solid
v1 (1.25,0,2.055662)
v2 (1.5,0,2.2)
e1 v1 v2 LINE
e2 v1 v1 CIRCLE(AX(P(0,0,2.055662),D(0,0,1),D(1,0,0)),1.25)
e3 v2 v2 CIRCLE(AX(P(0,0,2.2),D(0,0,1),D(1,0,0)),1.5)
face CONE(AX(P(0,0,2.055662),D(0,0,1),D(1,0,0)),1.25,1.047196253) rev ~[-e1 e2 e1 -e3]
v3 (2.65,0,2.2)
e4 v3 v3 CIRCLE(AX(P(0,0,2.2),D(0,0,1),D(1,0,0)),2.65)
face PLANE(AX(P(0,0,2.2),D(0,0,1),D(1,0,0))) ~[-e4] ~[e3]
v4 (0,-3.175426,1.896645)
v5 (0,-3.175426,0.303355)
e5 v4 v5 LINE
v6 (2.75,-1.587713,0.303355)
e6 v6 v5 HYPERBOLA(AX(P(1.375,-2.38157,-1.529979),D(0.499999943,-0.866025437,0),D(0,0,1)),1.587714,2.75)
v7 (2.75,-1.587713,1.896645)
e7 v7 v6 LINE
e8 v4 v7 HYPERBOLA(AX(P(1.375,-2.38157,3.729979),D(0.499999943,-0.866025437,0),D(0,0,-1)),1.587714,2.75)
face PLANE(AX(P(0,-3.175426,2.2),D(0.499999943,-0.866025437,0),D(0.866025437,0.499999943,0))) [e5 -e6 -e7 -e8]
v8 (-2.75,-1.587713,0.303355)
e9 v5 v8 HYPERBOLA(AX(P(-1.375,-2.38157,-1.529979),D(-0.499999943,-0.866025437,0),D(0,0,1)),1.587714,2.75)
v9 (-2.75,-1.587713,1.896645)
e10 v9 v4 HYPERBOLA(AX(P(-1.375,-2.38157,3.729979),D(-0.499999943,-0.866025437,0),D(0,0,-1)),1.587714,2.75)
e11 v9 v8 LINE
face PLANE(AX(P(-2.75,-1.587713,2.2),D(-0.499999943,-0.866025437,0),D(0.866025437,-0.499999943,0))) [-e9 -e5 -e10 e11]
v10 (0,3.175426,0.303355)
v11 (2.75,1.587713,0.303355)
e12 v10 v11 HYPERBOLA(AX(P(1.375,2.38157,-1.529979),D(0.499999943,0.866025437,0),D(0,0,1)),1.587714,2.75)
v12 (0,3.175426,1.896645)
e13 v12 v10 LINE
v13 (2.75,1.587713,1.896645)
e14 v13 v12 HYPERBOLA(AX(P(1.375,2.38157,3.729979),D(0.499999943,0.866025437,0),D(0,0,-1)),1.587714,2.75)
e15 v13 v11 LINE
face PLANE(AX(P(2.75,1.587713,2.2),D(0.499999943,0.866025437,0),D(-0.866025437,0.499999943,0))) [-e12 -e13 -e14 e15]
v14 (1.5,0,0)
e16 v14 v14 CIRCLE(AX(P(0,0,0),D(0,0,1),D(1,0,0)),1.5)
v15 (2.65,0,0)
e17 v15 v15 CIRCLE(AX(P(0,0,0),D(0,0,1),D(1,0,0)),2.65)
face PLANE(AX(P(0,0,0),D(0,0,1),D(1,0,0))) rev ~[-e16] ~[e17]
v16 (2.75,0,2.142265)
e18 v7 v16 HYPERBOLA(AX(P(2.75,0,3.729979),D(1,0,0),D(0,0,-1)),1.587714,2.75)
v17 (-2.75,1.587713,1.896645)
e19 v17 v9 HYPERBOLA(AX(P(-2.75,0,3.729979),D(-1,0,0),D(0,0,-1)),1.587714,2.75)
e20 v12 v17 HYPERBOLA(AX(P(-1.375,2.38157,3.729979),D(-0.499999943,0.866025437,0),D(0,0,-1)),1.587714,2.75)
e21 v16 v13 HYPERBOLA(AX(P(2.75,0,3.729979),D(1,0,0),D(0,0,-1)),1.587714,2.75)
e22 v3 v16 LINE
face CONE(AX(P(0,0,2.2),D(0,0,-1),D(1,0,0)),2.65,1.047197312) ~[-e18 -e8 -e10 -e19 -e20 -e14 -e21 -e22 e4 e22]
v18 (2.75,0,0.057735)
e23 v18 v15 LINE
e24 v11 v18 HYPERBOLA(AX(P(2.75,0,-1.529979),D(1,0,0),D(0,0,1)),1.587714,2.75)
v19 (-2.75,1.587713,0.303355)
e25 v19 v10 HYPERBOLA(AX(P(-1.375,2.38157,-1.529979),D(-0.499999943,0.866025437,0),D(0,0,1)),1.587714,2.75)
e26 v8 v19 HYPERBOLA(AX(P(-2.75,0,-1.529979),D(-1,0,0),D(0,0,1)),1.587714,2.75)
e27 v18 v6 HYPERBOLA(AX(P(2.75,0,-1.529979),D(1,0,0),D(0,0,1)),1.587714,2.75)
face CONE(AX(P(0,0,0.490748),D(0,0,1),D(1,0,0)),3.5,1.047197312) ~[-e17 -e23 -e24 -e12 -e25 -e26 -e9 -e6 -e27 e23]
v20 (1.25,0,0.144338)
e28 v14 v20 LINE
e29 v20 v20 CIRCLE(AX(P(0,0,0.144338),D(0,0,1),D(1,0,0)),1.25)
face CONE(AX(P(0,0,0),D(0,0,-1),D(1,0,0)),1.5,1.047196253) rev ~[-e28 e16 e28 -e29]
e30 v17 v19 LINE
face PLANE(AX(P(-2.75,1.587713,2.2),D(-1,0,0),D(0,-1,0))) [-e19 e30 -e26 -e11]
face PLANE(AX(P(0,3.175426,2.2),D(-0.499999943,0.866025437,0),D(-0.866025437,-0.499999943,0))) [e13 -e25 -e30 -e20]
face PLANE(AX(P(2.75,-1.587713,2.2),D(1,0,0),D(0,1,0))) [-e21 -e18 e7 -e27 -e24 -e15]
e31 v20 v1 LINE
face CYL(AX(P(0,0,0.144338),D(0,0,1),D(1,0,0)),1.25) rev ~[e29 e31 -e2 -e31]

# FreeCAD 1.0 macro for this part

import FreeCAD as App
import Part
import Sketcher
from FreeCAD import Vector
Q = App.Units.Quantity

doc = App.newDocument("Part")
params = doc.addObject("Spreadsheet::Sheet", "Params")
for row, (alias, value) in enumerate([
    ("sketch1_width", "1.15 mm"),
    ("revolution_angle", "360 deg"),
    ("sketch2_diameter", "7 mm"),
    ("pocket1_length", "2.2 mm"),
], start=1):
    params.set(f"A{row}", alias)
    params.set(f"B{row}", "=" + value)
    params.setAlias(f"B{row}", alias)

body = doc.addObject("PartDesign::Body", "Body")

sketch1 = doc.addObject("Sketcher::SketchObject", "Sketch")
body.addObject(sketch1)
sketch1.AttachmentSupport = (doc.XZ_Plane, [""])
sketch1.MapMode = "FlatFace"
sketch1.addGeometry([
    Part.LineSegment(Vector(1.25, 0.144338, 0), Vector(1.5, 0, 0)),
    Part.LineSegment(Vector(1.5, 0, 0), Vector(2.65, 0, 0)),
    Part.LineSegment(Vector(2.65, 0, 0), Vector(3.5, 0.490748, 0)),
    Part.LineSegment(Vector(3.5, 0.490748, 0), Vector(3.5, 1.709252, 0)),
    Part.LineSegment(Vector(3.5, 1.709252, 0), Vector(2.65, 2.2, 0)),
    Part.LineSegment(Vector(2.65, 2.2, 0), Vector(1.5, 2.2, 0)),
    Part.LineSegment(Vector(1.5, 2.2, 0), Vector(1.25, 2.055662, 0)),
    Part.LineSegment(Vector(1.25, 2.055662, 0), Vector(1.25, 0.144338, 0)),
], False)
sketch1.addConstraint([
    Sketcher.Constraint("Coincident", 0, 2, 1, 1),
    Sketcher.Constraint("Coincident", 1, 2, 2, 1),
    Sketcher.Constraint("Coincident", 2, 2, 3, 1),
    Sketcher.Constraint("Coincident", 3, 2, 4, 1),
    Sketcher.Constraint("Coincident", 4, 2, 5, 1),
    Sketcher.Constraint("Coincident", 5, 2, 6, 1),
    Sketcher.Constraint("Coincident", 6, 2, 7, 1),
    Sketcher.Constraint("Coincident", 7, 2, 0, 1),
    Sketcher.Constraint("Horizontal", 1),
    Sketcher.Constraint("Vertical", 3),
    Sketcher.Constraint("Horizontal", 5),
    Sketcher.Constraint("Vertical", 7),
    Sketcher.Constraint("PointOnObject", 0, 2, -1),
    Sketcher.Constraint("Parallel", 0, 4),
    Sketcher.Constraint("Parallel", 2, 6),
    Sketcher.Constraint("Vertical", 1, 2, 4, 2),
    Sketcher.Constraint("Vertical", 0, 2, 5, 2),
    Sketcher.Constraint("Equal", 2, 4),
    Sketcher.Constraint("Angle", 2, Q("30.000014 deg")),
    Sketcher.Constraint("DistanceX", 0, 2, 2, 2, Q("2 mm")),
    Sketcher.Constraint("DistanceX", 1, 1, 1, 2, Q("1.15 mm")),
    Sketcher.Constraint("DistanceX", -1, 1, 0, 2, Q("1.5 mm")),
    Sketcher.Constraint("DistanceY", -1, 1, 4, 2, Q("2.2 mm")),
    Sketcher.Constraint("DistanceX", 6, 2, 4, 2, Q("1.4 mm")),
])
sketch1.setExpression("Constraints[20]", "Params.sketch1_width")
revolution = doc.addObject("PartDesign::Revolution", "Revolution")
body.addObject(revolution)
revolution.Profile = sketch1
revolution.ReferenceAxis = (sketch1, ["V_Axis"])
revolution.setExpression("Angle", "Params.revolution_angle")

sketch2 = doc.addObject("Sketcher::SketchObject", "Sketch001")
body.addObject(sketch2)
sketch2.AttachmentSupport = (doc.XY_Plane, [""])
sketch2.MapMode = "FlatFace"
sketch2.AttachmentOffset = App.Placement(Vector(0, 0, 2.2), App.Rotation())
sketch2.addGeometry([
    Part.Circle(Vector(0, 0, 0), Vector(0, 0, 1), 3.5),
    Part.LineSegment(Vector(2.75, 1.587713, 0), Vector(2.75, -1.587713, 0)),
    Part.LineSegment(Vector(2.75, -1.587713, 0), Vector(0, -3.175426, 0)),
    Part.LineSegment(Vector(0, -3.175426, 0), Vector(-2.75, -1.587713, 0)),
    Part.LineSegment(Vector(-2.75, -1.587713, 0), Vector(-2.75, 1.587713, 0)),
    Part.LineSegment(Vector(-2.75, 1.587713, 0), Vector(0, 3.175426, 0)),
    Part.LineSegment(Vector(0, 3.175426, 0), Vector(2.75, 1.587713, 0)),
], False)
sketch2.addConstraint([
    Sketcher.Constraint("Coincident", 1, 2, 2, 1),
    Sketcher.Constraint("Coincident", 2, 2, 3, 1),
    Sketcher.Constraint("Coincident", 3, 2, 4, 1),
    Sketcher.Constraint("Coincident", 4, 2, 5, 1),
    Sketcher.Constraint("Coincident", 5, 2, 6, 1),
    Sketcher.Constraint("Coincident", 6, 2, 1, 1),
    Sketcher.Constraint("Vertical", 1),
    Sketcher.Constraint("Vertical", 4),
    Sketcher.Constraint("Coincident", 0, 3, -1, 1),
    Sketcher.Constraint("Symmetric", 1, 2, 4, 2, -1, 1),
    Sketcher.Constraint("Symmetric", 2, 2, 5, 2, -1, 1),
    Sketcher.Constraint("PointOnObject", 2, 2, -2),
    Sketcher.Constraint("Parallel", 3, 6),
    Sketcher.Constraint("Horizontal", 1, 2, 3, 2),
    Sketcher.Constraint("Diameter", 0, Q("7 mm")),
    Sketcher.Constraint("Angle", 2, Q("-150.000004 deg")),
    Sketcher.Constraint("DistanceX", 3, 2, 1, 2, Q("5.5 mm")),
    Sketcher.Constraint("DistanceY", 1, 2, 1, 1, Q("3.175426 mm")),
])
sketch2.setExpression("Constraints[14]", "Params.sketch2_diameter")
pocket1 = doc.addObject("PartDesign::Pocket", "Pocket")
body.addObject(pocket1)
pocket1.Profile = sketch2
pocket1.setExpression("Length", "Params.pocket1_length")

doc.recompute()
